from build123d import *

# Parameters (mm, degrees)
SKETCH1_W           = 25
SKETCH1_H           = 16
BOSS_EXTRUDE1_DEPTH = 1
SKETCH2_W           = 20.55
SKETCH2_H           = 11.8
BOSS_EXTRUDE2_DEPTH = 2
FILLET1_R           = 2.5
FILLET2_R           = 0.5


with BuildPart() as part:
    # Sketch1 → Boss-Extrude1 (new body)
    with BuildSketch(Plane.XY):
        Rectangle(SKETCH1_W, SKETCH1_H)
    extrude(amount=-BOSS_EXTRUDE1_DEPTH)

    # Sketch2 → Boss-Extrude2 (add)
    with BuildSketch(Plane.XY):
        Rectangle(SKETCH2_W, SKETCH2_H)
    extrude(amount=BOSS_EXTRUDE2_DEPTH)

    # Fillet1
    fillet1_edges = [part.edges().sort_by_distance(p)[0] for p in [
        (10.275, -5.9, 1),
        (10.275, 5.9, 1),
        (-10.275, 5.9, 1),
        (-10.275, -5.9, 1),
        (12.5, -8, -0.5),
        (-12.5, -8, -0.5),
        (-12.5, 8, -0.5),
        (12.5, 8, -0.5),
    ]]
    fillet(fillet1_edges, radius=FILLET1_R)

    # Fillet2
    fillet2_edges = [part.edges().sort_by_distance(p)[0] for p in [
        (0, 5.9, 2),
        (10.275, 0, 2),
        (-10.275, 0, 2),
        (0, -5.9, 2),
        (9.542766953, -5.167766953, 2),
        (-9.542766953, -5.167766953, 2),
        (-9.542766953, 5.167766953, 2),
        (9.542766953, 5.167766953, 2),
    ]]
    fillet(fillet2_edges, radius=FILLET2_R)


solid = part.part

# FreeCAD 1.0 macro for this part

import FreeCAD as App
import Part
import Sketcher

V = App.Vector


def edges_at(feature, points):
    """Names of the edges that pass closest to the given points."""
    edges = feature.Shape.Edges
    near = lambda p: min(range(len(edges)), key=lambda i: edges[i].distToShape(Part.Vertex(*p))[0])
    return sorted({f"Edge{near(p) + 1}" for p in points})


def add_polygon(sketch, points):
    """Adds a closed chain of lines whose ends are joined by coincident constraints."""
    first, n = sketch.GeometryCount, len(points)
    for a, b in zip(points, points[1:] + points[:1]):
        sketch.addGeometry(Part.LineSegment(App.Vector(*a, 0), App.Vector(*b, 0)), False)
    for i in range(n):
        sketch.addConstraint(Sketcher.Constraint("Coincident", first + i, 2, first + (i + 1) % n, 1))

doc = App.newDocument("Part")
body = doc.addObject("PartDesign::Body", "Body")

# Sketch on XY plane
sketch1 = body.newObject("Sketcher::SketchObject", "Sketch")
sketch1.AttachmentSupport = (doc.getObject("XY_Plane"), [""])
sketch1.MapMode = "FlatFace"
add_polygon(sketch1, [(-12, 8), (-12, -8), (12, -8), (12, 8)])  # lines 0-3
sketch1.addConstraint([
    Sketcher.Constraint("Vertical", 0),
    Sketcher.Constraint("Horizontal", 1),
    Sketcher.Constraint("Vertical", 2),
    Sketcher.Constraint("Horizontal", 3),
    Sketcher.Constraint("Symmetric", 0, 2, 2, 2, -1, 1),
    Sketcher.Constraint("DistanceX", 1, 1, 1, 2, 25.0),
    Sketcher.Constraint("DistanceY", 0, 2, 0, 1, 16.0),
])
pad1 = body.newObject("PartDesign::Pad", "Pad")
pad1.Profile = sketch1
pad1.Length = 1
pad1.Reversed = True

# Sketch on XY plane
sketch2 = body.newObject("Sketcher::SketchObject", "Sketch001")
sketch2.AttachmentSupport = (doc.getObject("XY_Plane"), [""])
sketch2.MapMode = "FlatFace"
add_polygon(sketch2, [(-10, 6), (-10, -6), (10, -6), (10, 6)])  # lines 0-3
sketch2.addConstraint([
    Sketcher.Constraint("Vertical", 0),
    Sketcher.Constraint("Horizontal", 1),
    Sketcher.Constraint("Vertical", 2),
    Sketcher.Constraint("Horizontal", 3),
    Sketcher.Constraint("Symmetric", 0, 2, 2, 2, -1, 1),
    Sketcher.Constraint("DistanceY", 0, 2, 0, 1, 11.8),
    Sketcher.Constraint("DistanceX", 1, 1, 1, 2, 20.55),
])
pad2 = body.newObject("PartDesign::Pad", "Pad001")
pad2.Profile = sketch2
pad2.Length = 2
doc.recompute()

fillet = body.newObject("PartDesign::Fillet", "Fillet")
fillet.Base = (pad2, edges_at(pad2, [
    (10.275, -5.9, 1),
    (10.275, 5.9, 1),
    (-10.275, 5.9, 1),
    (-10.275, -5.9, 1),
    (12.5, -8, -0.5),
    (-12.5, -8, -0.5),
    (-12.5, 8, -0.5),
    (12.5, 8, -0.5),
]))
fillet.Radius = 2.5
doc.recompute()

fillet2 = body.newObject("PartDesign::Fillet", "Fillet001")
fillet2.Base = (fillet, edges_at(fillet, [
    (0, 5.9, 2),
    (10.275, 0, 2),
    (-10.275, 0, 2),
    (0, -5.9, 2),
    (9.543, -5.168, 2),
    (-9.543, -5.168, 2),
    (-9.543, 5.168, 2),
    (9.543, 5.168, 2),
]))
fillet2.Radius = 0.5

doc.recompute()
